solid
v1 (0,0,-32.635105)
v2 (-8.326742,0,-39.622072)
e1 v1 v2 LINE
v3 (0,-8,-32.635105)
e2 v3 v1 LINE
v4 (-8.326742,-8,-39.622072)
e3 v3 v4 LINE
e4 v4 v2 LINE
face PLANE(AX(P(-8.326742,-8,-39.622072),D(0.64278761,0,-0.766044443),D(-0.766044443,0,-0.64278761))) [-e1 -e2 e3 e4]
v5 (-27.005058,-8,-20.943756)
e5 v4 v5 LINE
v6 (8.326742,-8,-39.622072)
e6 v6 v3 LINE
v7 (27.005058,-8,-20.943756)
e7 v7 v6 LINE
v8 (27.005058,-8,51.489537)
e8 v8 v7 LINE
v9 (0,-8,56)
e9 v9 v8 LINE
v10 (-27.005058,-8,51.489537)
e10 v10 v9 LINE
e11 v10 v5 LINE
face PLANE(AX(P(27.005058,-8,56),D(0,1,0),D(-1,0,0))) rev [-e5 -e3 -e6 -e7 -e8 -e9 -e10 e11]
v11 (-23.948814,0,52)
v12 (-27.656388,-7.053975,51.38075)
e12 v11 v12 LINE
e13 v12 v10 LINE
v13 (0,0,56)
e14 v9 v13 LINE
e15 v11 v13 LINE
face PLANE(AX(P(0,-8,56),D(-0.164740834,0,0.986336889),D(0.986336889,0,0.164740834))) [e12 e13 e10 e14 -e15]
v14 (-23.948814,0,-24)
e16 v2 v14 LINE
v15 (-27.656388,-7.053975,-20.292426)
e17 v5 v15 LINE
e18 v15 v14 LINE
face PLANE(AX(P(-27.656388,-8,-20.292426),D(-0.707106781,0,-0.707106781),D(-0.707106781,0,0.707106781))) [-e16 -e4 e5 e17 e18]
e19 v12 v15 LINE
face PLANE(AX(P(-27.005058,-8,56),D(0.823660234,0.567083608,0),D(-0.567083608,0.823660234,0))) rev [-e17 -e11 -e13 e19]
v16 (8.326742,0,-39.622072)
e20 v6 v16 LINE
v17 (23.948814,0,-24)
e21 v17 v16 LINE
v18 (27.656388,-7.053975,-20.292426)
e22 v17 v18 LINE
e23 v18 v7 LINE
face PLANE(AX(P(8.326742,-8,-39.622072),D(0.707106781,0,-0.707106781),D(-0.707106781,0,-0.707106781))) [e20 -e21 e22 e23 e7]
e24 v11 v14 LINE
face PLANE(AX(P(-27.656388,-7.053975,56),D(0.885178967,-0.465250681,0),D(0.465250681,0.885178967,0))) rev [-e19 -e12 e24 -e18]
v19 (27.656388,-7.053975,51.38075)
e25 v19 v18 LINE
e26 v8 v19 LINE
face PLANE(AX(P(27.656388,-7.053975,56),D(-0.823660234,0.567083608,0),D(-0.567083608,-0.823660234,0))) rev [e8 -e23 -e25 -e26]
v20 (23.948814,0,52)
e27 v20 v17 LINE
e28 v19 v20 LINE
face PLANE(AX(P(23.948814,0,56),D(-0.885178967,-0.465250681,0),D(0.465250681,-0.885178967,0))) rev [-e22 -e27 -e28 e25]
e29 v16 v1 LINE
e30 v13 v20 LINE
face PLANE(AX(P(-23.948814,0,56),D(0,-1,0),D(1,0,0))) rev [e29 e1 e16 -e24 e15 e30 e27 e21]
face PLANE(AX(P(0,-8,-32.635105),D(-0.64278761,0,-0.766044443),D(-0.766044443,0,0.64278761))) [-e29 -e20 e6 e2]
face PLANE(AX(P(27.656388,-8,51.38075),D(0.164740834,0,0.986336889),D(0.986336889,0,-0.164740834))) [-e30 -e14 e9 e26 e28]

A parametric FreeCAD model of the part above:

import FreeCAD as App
import Part
import Sketcher
Q = App.Units.Quantity

doc = App.newDocument("Part")
body = doc.addObject("PartDesign::Body", "Body")

sketch1 = body.newObject("Sketcher::SketchObject", "Sketch")
sketch1.AttachmentSupport = (doc.getObject("XY_Plane"), [""])
sketch1.MapMode = "FlatFace"
sketch1.AttachmentOffset = App.Placement(App.Vector(0, 0, -39.622072), App.Rotation())
sketch1.addGeometry([
    Part.LineSegment(App.Vector(27.7, -7.1, 0), App.Vector(23.9, 0, 0)),
    Part.LineSegment(App.Vector(23.9, 0, 0), App.Vector(-23.9, 0, 0)),
    Part.LineSegment(App.Vector(-23.9, 0, 0), App.Vector(-27.7, -7.1, 0)),
    Part.LineSegment(App.Vector(-27.7, -7.1, 0), App.Vector(-27, -8, 0)),
    Part.LineSegment(App.Vector(-27, -8, 0), App.Vector(27, -8, 0)),
    Part.LineSegment(App.Vector(27, -8, 0), App.Vector(27.7, -7.1, 0)),
], False)
sketch1.addConstraint([
    Sketcher.Constraint("Coincident", 0, 2, 1, 1),
    Sketcher.Constraint("Coincident", 1, 2, 2, 1),
    Sketcher.Constraint("Coincident", 2, 2, 3, 1),
    Sketcher.Constraint("Coincident", 3, 2, 4, 1),
    Sketcher.Constraint("Coincident", 4, 2, 5, 1),
    Sketcher.Constraint("Coincident", 5, 2, 0, 1),
    Sketcher.Constraint("Horizontal", 1),
    Sketcher.Constraint("Horizontal", 4),
    Sketcher.Constraint("Symmetric", 0, 2, 1, 2, -1, 1),
    Sketcher.Constraint("Symmetric", 2, 2, 5, 2, -2),
    Sketcher.Constraint("Equal", 3, 5),
    Sketcher.Constraint("DistanceY", 3, 2, -1, 1, Q("8 mm")),
    Sketcher.Constraint("Distance", 3, Q("1.148562 mm")),
    Sketcher.Constraint("DistanceX", 1, 2, 1, 1, Q("47.897628 mm")),
    Sketcher.Constraint("DistanceX", 4, 1, 4, 2, Q("54.010115 mm")),
    Sketcher.Constraint("DistanceX", 2, 2, -1, 1, Q("27.656388 mm")),
])
pad1 = body.newObject("PartDesign::Pad", "Pad")
pad1.Profile = sketch1
pad1.Length = 95.622072

sketch2 = body.newObject("Sketcher::SketchObject", "Sketch001")
sketch2.AttachmentSupport = (doc.getObject("XZ_Plane"), [""])
sketch2.MapMode = "FlatFace"
sketch2.addGeometry([
    Part.LineSegment(App.Vector(-40, -52, 0), App.Vector(-40, 68, 0)),
    Part.LineSegment(App.Vector(-40, 68, 0), App.Vector(40, 68, 0)),
    Part.LineSegment(App.Vector(40, 68, 0), App.Vector(40, -52, 0)),
    Part.LineSegment(App.Vector(40, -52, 0), App.Vector(-40, -52, 0)),
    Part.LineSegment(App.Vector(-8, -40, 0), App.Vector(0, -33, 0)),
    Part.LineSegment(App.Vector(0, -33, 0), App.Vector(8, -40, 0)),
    Part.LineSegment(App.Vector(8, -40, 0), App.Vector(28, -20, 0)),
    Part.LineSegment(App.Vector(28, -20, 0), App.Vector(28, 51, 0)),
    Part.LineSegment(App.Vector(28, 51, 0), App.Vector(0, 56, 0)),
    Part.LineSegment(App.Vector(0, 56, 0), App.Vector(-28, 51, 0)),
    Part.LineSegment(App.Vector(-28, 51, 0), App.Vector(-28, -20, 0)),
    Part.LineSegment(App.Vector(-28, -20, 0), App.Vector(-8, -40, 0)),
], False)
sketch2.addConstraint([
    Sketcher.Constraint("Coincident", 0, 2, 1, 1),
    Sketcher.Constraint("Coincident", 1, 2, 2, 1),
    Sketcher.Constraint("Coincident", 2, 2, 3, 1),
    Sketcher.Constraint("Coincident", 3, 2, 0, 1),
    Sketcher.Constraint("Coincident", 4, 2, 5, 1),
    Sketcher.Constraint("Coincident", 5, 2, 6, 1),
    Sketcher.Constraint("Coincident", 6, 2, 7, 1),
    Sketcher.Constraint("Coincident", 7, 2, 8, 1),
    Sketcher.Constraint("Coincident", 8, 2, 9, 1),
    Sketcher.Constraint("Coincident", 9, 2, 10, 1),
    Sketcher.Constraint("Coincident", 10, 2, 11, 1),
    Sketcher.Constraint("Coincident", 11, 2, 4, 1),
    Sketcher.Constraint("Vertical", 0),
    Sketcher.Constraint("Horizontal", 1),
    Sketcher.Constraint("Vertical", 2),
    Sketcher.Constraint("Horizontal", 3),
    Sketcher.Constraint("Vertical", 7),
    Sketcher.Constraint("Vertical", 10),
    Sketcher.Constraint("Symmetric", 7, 2, 9, 2, -2),
    Sketcher.Constraint("Symmetric", 5, 2, 11, 2, -2),
    Sketcher.Constraint("PointOnObject", 4, 2, -2),
    Sketcher.Constraint("PointOnObject", 8, 2, -2),
    Sketcher.Constraint("Perpendicular", 6, 11),
    Sketcher.Constraint("Horizontal", 6, 2, 10, 2),
    Sketcher.Constraint("Angle", 4, Q("40 deg")),
    Sketcher.Constraint("DistanceY", -1, 1, 8, 2, Q("56 mm")),
    Sketcher.Constraint("DistanceX", 1, 1, 1, 2, Q("79.464 mm")),
    Sketcher.Constraint("DistanceY", 0, 1, 0, 2, Q("119.774 mm")),
    Sketcher.Constraint("DistanceX", 0, 2, -1, 1, Q("39.732 mm")),
    Sketcher.Constraint("DistanceY", -1, 1, 0, 2, Q("68.076 mm")),
    Sketcher.Constraint("Distance", 4, Q("10.86979 mm")),
    Sketcher.Constraint("DistanceY", 7, 1, 7, 2, Q("71.673176 mm")),
    Sketcher.Constraint("DistanceY", 5, 2, -1, 1, Q("39.622072 mm")),
    Sketcher.Constraint("DistanceX", -1, 1, 6, 2, Q("27.656388 mm")),
])
pocket1 = body.newObject("PartDesign::Pocket", "Pocket")
pocket1.Profile = sketch2
pocket1.Type = "ThroughAll"
pocket1.Reversed = True

doc.recompute()
